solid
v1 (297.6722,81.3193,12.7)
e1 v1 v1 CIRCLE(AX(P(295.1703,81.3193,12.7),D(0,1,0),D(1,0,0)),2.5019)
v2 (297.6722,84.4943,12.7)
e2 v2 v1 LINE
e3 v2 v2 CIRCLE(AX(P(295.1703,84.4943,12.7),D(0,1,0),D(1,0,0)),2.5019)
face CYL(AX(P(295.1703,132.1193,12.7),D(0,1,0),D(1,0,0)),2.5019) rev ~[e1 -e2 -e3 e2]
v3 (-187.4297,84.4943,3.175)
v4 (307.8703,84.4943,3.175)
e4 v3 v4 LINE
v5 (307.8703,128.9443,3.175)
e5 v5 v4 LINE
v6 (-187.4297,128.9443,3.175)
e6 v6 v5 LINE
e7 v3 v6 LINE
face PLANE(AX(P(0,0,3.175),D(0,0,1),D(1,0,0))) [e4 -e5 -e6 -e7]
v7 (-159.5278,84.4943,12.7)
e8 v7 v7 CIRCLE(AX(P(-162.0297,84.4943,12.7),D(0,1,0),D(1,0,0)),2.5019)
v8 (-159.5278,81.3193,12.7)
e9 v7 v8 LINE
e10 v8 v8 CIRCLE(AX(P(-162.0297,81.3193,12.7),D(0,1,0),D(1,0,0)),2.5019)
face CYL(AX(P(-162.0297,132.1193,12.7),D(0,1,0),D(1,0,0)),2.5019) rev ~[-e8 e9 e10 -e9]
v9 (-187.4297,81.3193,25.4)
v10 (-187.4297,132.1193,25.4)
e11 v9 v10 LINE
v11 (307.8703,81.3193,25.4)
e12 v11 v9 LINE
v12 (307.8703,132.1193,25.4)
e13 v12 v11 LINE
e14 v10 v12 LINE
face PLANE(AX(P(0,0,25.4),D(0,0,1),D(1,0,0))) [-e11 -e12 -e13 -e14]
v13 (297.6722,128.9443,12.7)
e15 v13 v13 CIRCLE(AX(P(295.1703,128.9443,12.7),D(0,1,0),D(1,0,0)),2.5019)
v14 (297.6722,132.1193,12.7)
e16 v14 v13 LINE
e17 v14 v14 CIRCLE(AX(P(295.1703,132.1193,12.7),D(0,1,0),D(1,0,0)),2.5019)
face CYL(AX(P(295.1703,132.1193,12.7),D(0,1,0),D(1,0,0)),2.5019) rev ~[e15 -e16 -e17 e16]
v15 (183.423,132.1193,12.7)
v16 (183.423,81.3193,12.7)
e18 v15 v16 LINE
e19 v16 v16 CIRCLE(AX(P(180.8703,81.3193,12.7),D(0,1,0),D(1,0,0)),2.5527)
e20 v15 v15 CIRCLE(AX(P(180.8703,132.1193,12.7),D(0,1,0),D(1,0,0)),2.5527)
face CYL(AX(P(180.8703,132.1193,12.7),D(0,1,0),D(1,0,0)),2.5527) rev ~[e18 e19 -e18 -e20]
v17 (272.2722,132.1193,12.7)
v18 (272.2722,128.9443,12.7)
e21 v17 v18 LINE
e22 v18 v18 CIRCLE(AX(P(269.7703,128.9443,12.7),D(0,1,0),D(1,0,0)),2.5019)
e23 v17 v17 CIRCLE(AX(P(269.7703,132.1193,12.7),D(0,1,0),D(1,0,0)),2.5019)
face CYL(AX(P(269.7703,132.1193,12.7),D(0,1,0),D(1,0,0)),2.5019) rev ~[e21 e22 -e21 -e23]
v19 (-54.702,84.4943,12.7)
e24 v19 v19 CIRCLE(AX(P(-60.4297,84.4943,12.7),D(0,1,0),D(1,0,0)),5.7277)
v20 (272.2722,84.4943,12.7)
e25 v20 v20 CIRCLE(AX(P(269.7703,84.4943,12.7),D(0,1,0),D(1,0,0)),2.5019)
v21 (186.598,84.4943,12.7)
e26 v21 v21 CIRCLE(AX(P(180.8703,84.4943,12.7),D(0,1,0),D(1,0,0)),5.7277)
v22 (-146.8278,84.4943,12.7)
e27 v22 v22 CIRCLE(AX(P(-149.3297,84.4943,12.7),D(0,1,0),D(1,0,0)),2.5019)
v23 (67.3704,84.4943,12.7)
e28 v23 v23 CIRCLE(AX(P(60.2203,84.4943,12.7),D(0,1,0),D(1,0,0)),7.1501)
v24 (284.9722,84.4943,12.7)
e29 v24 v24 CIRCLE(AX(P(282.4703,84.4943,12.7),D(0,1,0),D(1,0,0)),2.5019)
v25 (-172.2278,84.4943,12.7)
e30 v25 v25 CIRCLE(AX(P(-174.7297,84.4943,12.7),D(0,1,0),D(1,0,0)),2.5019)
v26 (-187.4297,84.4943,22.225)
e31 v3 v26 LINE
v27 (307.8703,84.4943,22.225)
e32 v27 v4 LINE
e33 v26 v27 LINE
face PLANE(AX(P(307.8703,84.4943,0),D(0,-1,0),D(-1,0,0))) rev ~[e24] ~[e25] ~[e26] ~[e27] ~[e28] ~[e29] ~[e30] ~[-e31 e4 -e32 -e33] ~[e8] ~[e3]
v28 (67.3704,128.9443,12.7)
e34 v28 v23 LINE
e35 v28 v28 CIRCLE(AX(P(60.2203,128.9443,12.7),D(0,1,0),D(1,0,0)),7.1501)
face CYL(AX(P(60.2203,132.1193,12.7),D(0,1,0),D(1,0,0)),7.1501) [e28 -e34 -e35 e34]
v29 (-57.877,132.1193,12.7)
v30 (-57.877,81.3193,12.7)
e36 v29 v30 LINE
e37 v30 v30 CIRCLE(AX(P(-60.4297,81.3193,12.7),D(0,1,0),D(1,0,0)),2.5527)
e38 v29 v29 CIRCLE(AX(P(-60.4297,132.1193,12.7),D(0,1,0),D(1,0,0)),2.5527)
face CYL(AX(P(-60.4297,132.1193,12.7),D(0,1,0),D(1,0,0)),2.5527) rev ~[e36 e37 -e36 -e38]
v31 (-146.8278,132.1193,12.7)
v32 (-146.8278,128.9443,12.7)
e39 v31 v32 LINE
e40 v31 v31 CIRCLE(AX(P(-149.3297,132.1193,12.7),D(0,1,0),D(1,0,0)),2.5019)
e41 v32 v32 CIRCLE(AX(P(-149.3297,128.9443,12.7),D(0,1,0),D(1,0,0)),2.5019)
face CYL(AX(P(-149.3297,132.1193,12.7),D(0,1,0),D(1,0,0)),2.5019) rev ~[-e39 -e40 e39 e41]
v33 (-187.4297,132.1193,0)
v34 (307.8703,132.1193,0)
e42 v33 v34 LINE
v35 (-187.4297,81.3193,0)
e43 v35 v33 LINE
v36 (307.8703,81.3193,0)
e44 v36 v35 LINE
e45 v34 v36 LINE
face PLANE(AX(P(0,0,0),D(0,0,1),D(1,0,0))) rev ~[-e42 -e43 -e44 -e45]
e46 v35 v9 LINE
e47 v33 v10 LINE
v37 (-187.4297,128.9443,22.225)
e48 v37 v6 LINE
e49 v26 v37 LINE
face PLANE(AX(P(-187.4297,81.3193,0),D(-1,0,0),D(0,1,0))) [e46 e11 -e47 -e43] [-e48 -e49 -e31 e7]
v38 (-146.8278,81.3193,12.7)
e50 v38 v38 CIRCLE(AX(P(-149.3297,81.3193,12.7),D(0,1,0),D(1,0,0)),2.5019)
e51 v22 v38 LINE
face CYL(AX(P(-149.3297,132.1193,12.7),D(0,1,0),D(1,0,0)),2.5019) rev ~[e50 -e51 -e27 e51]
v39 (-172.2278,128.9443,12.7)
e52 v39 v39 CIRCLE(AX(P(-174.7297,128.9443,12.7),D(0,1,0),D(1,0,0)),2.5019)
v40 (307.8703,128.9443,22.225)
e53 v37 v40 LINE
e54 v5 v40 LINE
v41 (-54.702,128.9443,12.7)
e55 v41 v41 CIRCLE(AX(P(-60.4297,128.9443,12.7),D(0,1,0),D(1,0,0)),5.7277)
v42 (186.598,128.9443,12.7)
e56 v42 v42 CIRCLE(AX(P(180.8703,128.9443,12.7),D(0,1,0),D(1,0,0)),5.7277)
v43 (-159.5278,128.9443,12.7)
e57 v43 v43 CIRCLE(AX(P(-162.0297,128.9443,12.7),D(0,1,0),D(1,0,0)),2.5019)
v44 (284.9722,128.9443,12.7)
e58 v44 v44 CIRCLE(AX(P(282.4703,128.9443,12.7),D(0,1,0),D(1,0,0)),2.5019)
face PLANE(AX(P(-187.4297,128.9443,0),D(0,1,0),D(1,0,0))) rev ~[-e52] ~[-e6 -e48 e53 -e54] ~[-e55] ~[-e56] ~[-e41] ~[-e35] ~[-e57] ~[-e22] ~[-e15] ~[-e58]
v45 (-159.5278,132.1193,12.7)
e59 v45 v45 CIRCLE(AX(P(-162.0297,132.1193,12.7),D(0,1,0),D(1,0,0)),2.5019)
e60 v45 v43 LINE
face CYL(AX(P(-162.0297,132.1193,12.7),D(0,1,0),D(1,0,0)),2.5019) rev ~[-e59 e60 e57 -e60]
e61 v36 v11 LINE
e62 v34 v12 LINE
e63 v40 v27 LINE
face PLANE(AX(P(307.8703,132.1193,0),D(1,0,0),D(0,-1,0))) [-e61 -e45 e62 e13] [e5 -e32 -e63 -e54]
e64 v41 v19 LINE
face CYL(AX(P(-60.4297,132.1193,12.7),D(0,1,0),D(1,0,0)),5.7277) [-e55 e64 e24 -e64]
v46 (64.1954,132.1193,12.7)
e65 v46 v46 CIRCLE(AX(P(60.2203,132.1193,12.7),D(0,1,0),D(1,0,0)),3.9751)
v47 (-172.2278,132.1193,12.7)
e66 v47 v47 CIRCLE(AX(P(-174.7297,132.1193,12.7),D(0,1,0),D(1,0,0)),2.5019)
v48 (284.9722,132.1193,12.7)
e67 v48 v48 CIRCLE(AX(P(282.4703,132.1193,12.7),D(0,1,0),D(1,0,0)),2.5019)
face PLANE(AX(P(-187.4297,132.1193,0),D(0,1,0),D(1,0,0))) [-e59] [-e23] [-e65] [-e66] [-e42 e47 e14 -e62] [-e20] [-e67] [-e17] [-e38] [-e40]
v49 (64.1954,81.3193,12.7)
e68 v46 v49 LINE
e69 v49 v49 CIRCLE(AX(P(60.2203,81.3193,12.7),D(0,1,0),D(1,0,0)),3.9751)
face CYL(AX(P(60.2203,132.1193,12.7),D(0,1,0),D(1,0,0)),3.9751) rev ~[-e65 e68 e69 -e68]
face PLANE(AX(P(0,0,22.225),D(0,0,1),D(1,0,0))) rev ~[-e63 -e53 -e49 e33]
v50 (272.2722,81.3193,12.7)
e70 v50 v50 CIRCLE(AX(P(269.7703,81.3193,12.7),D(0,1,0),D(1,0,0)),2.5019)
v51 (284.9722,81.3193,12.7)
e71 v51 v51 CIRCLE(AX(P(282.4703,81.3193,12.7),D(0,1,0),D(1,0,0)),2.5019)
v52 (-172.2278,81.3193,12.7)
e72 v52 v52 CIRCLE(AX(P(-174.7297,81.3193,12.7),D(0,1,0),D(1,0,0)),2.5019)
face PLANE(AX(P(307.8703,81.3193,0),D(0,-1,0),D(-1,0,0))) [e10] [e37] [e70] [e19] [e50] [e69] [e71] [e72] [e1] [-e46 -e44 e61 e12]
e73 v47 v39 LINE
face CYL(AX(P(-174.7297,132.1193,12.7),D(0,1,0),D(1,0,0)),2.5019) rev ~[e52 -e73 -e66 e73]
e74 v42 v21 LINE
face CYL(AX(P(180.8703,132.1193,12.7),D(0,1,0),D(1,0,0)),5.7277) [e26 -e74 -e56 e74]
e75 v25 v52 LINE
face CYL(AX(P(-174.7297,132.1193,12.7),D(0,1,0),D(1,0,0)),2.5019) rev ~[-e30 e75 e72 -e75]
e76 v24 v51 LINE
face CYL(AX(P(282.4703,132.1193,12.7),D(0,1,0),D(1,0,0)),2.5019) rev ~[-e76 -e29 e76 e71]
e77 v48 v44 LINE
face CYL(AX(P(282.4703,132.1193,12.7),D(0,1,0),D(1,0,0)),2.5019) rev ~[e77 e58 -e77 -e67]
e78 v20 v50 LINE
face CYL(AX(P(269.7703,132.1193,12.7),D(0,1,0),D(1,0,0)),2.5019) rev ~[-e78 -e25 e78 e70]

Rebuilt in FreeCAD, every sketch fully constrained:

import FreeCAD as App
import Part
import Sketcher

V = App.Vector
Q = App.Units.Quantity


def faces_at(feature, points):
    """Names of the faces that lie closest to the given points."""
    faces = feature.Shape.Faces
    near = lambda p: min(range(len(faces)), key=lambda i: faces[i].distToShape(Part.Vertex(*p))[0])
    return sorted({f"Face{near(p) + 1}" for p in points})


def add_polygon(sketch, points):
    """Adds a closed chain of lines whose ends are joined by coincident constraints."""
    first, n = sketch.GeometryCount, len(points)
    for a, b in zip(points, points[1:] + points[:1]):
        sketch.addGeometry(Part.LineSegment(App.Vector(*a, 0), App.Vector(*b, 0)), False)
    for i in range(n):
        sketch.addConstraint(Sketcher.Constraint("Coincident", first + i, 2, first + (i + 1) % n, 1))

doc = App.newDocument("Part")
body = doc.addObject("PartDesign::Body", "Body")

# Sketch on XY plane
sketch1 = body.newObject("Sketcher::SketchObject", "Sketch")
sketch1.AttachmentSupport = (doc.getObject("XY_Plane"), [""])
sketch1.MapMode = "FlatFace"
add_polygon(sketch1, [(307.8703, 132.1193), (-187.4297, 132.1193), (-187.4297, 81.3193), (307.8703, 81.3193)])  # lines 0-3
sketch1.addConstraint([
    Sketcher.Constraint("Horizontal", 0),
    Sketcher.Constraint("Vertical", 1),
    Sketcher.Constraint("Horizontal", 2),
    Sketcher.Constraint("Vertical", 3),
    Sketcher.Constraint("DistanceY", 1, 2, 1, 1, Q("2 in")),
    Sketcher.Constraint("DistanceX", 0, 2, 0, 1, Q("19.5 in")),
    Sketcher.Constraint("DistanceX", 0, 2, -1, 1, 187.4297),
    Sketcher.Constraint("DistanceY", -1, 1, 0, 2, 132.1193),
])
pad1 = body.newObject("PartDesign::Pad", "Pad")
pad1.Profile = sketch1
pad1.Length = Q("1 in")

# Sketch on XZ plane
sketch2 = body.newObject("Sketcher::SketchObject", "Sketch001")
sketch2.AttachmentSupport = (doc.getObject("XZ_Plane"), [""])
sketch2.MapMode = "FlatFace"
sketch2.AttachmentOffset = App.Placement(V(0, 0, -132.1193), App.Rotation())
sketch2.addGeometry([
    Part.Circle(V(-174.7297, 12.7, 0), V(0, 0, 1), 2.5019),  # 0
    Part.Circle(V(-162.0297, 12.7, 0), V(0, 0, 1), 2.5019),  # 1
    Part.Circle(V(-149.3297, 12.7, 0), V(0, 0, 1), 2.5019),  # 2
    Part.Circle(V(295.1703, 12.7, 0), V(0, 0, 1), 2.5019),  # 3
    Part.Circle(V(282.4703, 12.7, 0), V(0, 0, 1), 2.5019),  # 4
    Part.Circle(V(269.7703, 12.7, 0), V(0, 0, 1), 2.5019),  # 5
    Part.Circle(V(180.8703, 12.7, 0), V(0, 0, 1), 2.5527),  # 6
    Part.Circle(V(60.2203, 12.7, 0), V(0, 0, 1), 3.9751),  # 7
    Part.Circle(V(-60.4297, 12.7, 0), V(0, 0, 1), 2.5527),  # 8
], False)
sketch2.addConstraint([
    Sketcher.Constraint("Equal", 0, 1),
    Sketcher.Constraint("Equal", 1, 2),
    Sketcher.Constraint("Equal", 2, 3),
    Sketcher.Constraint("Equal", 3, 4),
    Sketcher.Constraint("Equal", 4, 5),
    Sketcher.Constraint("Equal", 6, 8),
    Sketcher.Constraint("Horizontal", 0, 3, 1, 3),
    Sketcher.Constraint("Horizontal", 1, 3, 2, 3),
    Sketcher.Constraint("Horizontal", 2, 3, 3, 3),
    Sketcher.Constraint("Horizontal", 3, 3, 4, 3),
    Sketcher.Constraint("Horizontal", 4, 3, 5, 3),
    Sketcher.Constraint("Horizontal", 5, 3, 6, 3),
    Sketcher.Constraint("Horizontal", 6, 3, 7, 3),
    Sketcher.Constraint("Horizontal", 7, 3, 8, 3),
    Sketcher.Constraint("Diameter", 0, Q("0.197 in")),
    Sketcher.Constraint("Diameter", 6, Q("0.201 in")),
    Sketcher.Constraint("Diameter", 7, Q("0.313 in")),
    Sketcher.Constraint("DistanceY", -1, 1, 0, 3, Q("0.5 in")),
    Sketcher.Constraint("DistanceX", 0, 3, 1, 3, Q("0.5 in")),
    Sketcher.Constraint("DistanceX", 1, 3, 2, 3, Q("0.5 in")),
    Sketcher.Constraint("DistanceX", 4, 3, 3, 3, Q("0.5 in")),
    Sketcher.Constraint("DistanceX", 5, 3, 4, 3, Q("0.5 in")),
    Sketcher.Constraint("DistanceX", 1, 3, 3, 3, Q("18 in")),
    Sketcher.Constraint("DistanceX", 6, 3, 4, 3, Q("4 in")),
    Sketcher.Constraint("DistanceX", 1, 3, 8, 3, Q("4 in")),
    Sketcher.Constraint("DistanceX", 7, 3, 6, 3, Q("4.75 in")),
    Sketcher.Constraint("DistanceX", 0, 3, -1, 1, 174.7297),
])
pocket1 = body.newObject("PartDesign::Pocket", "Pocket")
pocket1.Profile = sketch2
pocket1.Length = Q("2 in")
pocket1.Reversed = True
doc.recompute()

thickness = body.newObject("PartDesign::Thickness", "Thickness")
thickness.Base = (pocket1, faces_at(pocket1, [
    (-187.43, 115.186, 16.933),
    (307.87, 98.253, 8.467),
    (295.07, 98.253, 10.2),
    (282.37, 98.253, 10.2),
    (269.67, 98.253, 10.2),
    (-149.43, 98.253, 10.2),
    (-162.13, 98.253, 10.2),
    (-174.83, 98.253, 10.2),
]))
thickness.Value = Q("0.125 in")
thickness.Reversed = True
thickness.Join = "Intersection"

doc.recompute()
